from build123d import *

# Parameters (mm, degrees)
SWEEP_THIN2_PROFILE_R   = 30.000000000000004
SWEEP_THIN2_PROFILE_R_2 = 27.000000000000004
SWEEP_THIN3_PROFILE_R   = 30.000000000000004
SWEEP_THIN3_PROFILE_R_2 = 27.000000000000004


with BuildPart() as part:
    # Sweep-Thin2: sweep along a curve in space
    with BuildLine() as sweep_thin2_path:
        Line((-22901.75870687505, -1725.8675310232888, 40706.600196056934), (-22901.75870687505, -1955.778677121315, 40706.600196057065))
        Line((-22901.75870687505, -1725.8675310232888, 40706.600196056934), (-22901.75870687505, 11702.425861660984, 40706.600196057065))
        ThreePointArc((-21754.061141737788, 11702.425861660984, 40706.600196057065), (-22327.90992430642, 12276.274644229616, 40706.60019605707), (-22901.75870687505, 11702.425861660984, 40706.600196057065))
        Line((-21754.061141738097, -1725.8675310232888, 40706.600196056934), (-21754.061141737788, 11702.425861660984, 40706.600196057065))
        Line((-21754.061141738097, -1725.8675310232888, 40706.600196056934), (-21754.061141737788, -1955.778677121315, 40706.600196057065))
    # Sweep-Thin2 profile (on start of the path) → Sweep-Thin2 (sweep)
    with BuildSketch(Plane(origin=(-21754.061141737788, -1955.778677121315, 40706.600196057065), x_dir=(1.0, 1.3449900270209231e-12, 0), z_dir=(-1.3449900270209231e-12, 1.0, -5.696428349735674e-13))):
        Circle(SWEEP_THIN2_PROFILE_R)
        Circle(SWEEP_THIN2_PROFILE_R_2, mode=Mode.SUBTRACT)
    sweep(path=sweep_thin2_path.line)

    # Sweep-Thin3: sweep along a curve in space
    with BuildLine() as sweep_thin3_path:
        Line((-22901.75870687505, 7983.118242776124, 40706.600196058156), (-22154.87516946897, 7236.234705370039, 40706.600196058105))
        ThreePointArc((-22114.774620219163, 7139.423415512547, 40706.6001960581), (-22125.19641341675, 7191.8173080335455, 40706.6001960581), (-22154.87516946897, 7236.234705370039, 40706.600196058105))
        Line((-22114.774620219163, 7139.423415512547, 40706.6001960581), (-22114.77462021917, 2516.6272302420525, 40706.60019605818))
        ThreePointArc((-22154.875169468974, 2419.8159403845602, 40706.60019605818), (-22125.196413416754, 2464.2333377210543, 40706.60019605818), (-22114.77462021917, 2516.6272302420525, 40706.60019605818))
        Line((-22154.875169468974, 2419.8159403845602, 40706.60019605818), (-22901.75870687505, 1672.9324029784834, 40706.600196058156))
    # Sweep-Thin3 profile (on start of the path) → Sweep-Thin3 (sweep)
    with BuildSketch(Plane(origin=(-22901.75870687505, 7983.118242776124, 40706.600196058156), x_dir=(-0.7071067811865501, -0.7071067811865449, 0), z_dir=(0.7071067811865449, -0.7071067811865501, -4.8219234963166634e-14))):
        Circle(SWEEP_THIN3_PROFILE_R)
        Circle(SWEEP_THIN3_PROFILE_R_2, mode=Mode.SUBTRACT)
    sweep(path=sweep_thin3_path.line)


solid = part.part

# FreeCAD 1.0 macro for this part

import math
import FreeCAD as App
import Part
import Sketcher

V = App.Vector

doc = App.newDocument("Part")
body = doc.addObject("PartDesign::Body", "Body")

sketch1 = doc.addObject("Sketcher::SketchObject", "Sketch")
body.addObject(sketch1)
sketch1.AttachmentSupport = (doc.XZ_Plane, [""])
sketch1.MapMode = "FlatFace"
sketch1.AttachmentOffset = App.Placement(V(0, 0, 1955.778677), App.Rotation())
sketch1.addGeometry([
    Part.Circle(V(-21754, 40707, 0), V(0, 0, 1), 30),
    Part.Circle(V(-21754, 40707, 0), V(0, 0, 1), 27),
], False)
sketch1.addConstraint([
    Sketcher.Constraint("Coincident", 1, 3, 0, 3),
    Sketcher.Constraint("Diameter", 0, 60.0),
    Sketcher.Constraint("Diameter", 1, 54.0),
    Sketcher.Constraint("DistanceX", 0, 3, -1, 1, 21754.061142),
    Sketcher.Constraint("DistanceY", -1, 1, 0, 3, 40706.600196),
])

sketch2 = doc.addObject("Sketcher::SketchObject", "Sketch001")
body.addObject(sketch2)
sketch2.AttachmentSupport = (doc.XY_Plane, [""])
sketch2.MapMode = "FlatFace"
sketch2.AttachmentOffset = App.Placement(V(0, 0, 40706.600196), App.Rotation())
sketch2.addGeometry([
    Part.LineSegment(V(-21754, -1956, 0), V(-21754, -1726, 0)),
    Part.LineSegment(V(-21754, -1726, 0), V(-21754, 11702, 0)),
    Part.ArcOfCircle(Part.Circle(V(-22328, 11702, 0), V(0, 0, 1), 574), math.radians(0), math.radians(180)),
    Part.LineSegment(V(-22902, 11702, 0), V(-22902, -1726, 0)),
    Part.LineSegment(V(-22902, -1726, 0), V(-22902, -1956, 0)),
], False)
sketch2.addConstraint([
    Sketcher.Constraint("Coincident", 0, 2, 1, 1),
    Sketcher.Constraint("Tangent", 1, 2, 2, 1),
    Sketcher.Constraint("Tangent", 2, 2, 3, 1),
    Sketcher.Constraint("Coincident", 3, 2, 4, 1),
    Sketcher.Constraint("Vertical", 0),
    Sketcher.Constraint("Vertical", 1),
    Sketcher.Constraint("Vertical", 3),
    Sketcher.Constraint("Vertical", 4),
    Sketcher.Constraint("Horizontal", 0, 2, 3, 2),
    Sketcher.Constraint("Horizontal", 0, 1, 4, 2),
    Sketcher.Constraint("Radius", 2, 573.848783),
    Sketcher.Constraint("DistanceY", 0, 1, 0, 2, 229.911146),
    Sketcher.Constraint("DistanceY", 1, 1, 1, 2, 13428.293393),
    Sketcher.Constraint("DistanceY", -1, 1, 2, 3, 11702.425862),
    Sketcher.Constraint("DistanceX", 0, 1, -1, 1, 21754.061142),
])
doc.recompute()

additivepipe = doc.addObject("PartDesign::AdditivePipe", "AdditivePipe")
body.addObject(additivepipe)
additivepipe.Profile = sketch1
additivepipe.Spine = (sketch2, ["Edge1", "Edge2", "Edge3", "Edge4", "Edge5"])

sketch3 = doc.addObject("Sketcher::SketchObject", "Sketch002")
body.addObject(sketch3)
sketch3.Placement = App.Placement(V(-22901.758707, 7983.118243, 40706.600196), App.Rotation(V(-0.707106781, -0.707106781, 0), V(0, 0, -0.999999999), V(0.707106781, -0.707106781, 0), "ZXY"))
sketch3.addGeometry([
    Part.Circle(V(0, 0, 0), V(0, 0, 1), 30),
    Part.Circle(V(0, 0, 0), V(0, 0, 1), 27),
], False)
sketch3.addConstraint([
    Sketcher.Constraint("Coincident", 0, 3, -1, 1),
    Sketcher.Constraint("Coincident", 1, 3, -1, 1),
    Sketcher.Constraint("Diameter", 0, 60.0),
    Sketcher.Constraint("Diameter", 1, 54.0),
])

sketch4 = doc.addObject("Sketcher::SketchObject", "Sketch003")
body.addObject(sketch4)
sketch4.AttachmentSupport = (doc.XY_Plane, [""])
sketch4.MapMode = "FlatFace"
sketch4.AttachmentOffset = App.Placement(V(0, 0, 40706.600196), App.Rotation())
sketch4.addGeometry([
    Part.LineSegment(V(-22902, 7983, 0), V(-22155, 7236, 0)),
    Part.ArcOfCircle(Part.Circle(V(-22252, 7139, 0), V(0, 0, 1), 137), math.radians(0), math.radians(45)),
    Part.LineSegment(V(-22115, 7139, 0), V(-22115, 2517, 0)),
    Part.ArcOfCircle(Part.Circle(V(-22252, 2517, 0), V(0, 0, 1), 137), math.radians(-45), math.radians(0)),
    Part.LineSegment(V(-22155, 2420, 0), V(-22902, 1673, 0)),
], False)
sketch4.addConstraint([
    Sketcher.Constraint("Tangent", 0, 2, 1, 2),
    Sketcher.Constraint("Tangent", 1, 1, 2, 1),
    Sketcher.Constraint("Tangent", 2, 2, 3, 2),
    Sketcher.Constraint("Tangent", 3, 1, 4, 1),
    Sketcher.Constraint("Vertical", 2),
    Sketcher.Constraint("Equal", 1, 3),
    Sketcher.Constraint("Perpendicular", 0, 4),
    Sketcher.Constraint("Vertical", 0, 1, 4, 2),
    Sketcher.Constraint("Equal", 0, 4),
    Sketcher.Constraint("Radius", 1, 136.911839),
    Sketcher.Constraint("Distance", 0, 1056.252828),
    Sketcher.Constraint("DistanceY", 2, 2, 2, 1, 4622.796185),
    Sketcher.Constraint("DistanceX", 1, 3, -1, 1, 22251.686459),
    Sketcher.Constraint("DistanceY", -1, 1, 3, 3, 2516.62723),
])
doc.recompute()

additivepipe2 = doc.addObject("PartDesign::AdditivePipe", "AdditivePipe001")
body.addObject(additivepipe2)
additivepipe2.Profile = sketch3
additivepipe2.Spine = (sketch4, ["Edge1", "Edge2", "Edge3", "Edge4", "Edge5"])

doc.recompute()
